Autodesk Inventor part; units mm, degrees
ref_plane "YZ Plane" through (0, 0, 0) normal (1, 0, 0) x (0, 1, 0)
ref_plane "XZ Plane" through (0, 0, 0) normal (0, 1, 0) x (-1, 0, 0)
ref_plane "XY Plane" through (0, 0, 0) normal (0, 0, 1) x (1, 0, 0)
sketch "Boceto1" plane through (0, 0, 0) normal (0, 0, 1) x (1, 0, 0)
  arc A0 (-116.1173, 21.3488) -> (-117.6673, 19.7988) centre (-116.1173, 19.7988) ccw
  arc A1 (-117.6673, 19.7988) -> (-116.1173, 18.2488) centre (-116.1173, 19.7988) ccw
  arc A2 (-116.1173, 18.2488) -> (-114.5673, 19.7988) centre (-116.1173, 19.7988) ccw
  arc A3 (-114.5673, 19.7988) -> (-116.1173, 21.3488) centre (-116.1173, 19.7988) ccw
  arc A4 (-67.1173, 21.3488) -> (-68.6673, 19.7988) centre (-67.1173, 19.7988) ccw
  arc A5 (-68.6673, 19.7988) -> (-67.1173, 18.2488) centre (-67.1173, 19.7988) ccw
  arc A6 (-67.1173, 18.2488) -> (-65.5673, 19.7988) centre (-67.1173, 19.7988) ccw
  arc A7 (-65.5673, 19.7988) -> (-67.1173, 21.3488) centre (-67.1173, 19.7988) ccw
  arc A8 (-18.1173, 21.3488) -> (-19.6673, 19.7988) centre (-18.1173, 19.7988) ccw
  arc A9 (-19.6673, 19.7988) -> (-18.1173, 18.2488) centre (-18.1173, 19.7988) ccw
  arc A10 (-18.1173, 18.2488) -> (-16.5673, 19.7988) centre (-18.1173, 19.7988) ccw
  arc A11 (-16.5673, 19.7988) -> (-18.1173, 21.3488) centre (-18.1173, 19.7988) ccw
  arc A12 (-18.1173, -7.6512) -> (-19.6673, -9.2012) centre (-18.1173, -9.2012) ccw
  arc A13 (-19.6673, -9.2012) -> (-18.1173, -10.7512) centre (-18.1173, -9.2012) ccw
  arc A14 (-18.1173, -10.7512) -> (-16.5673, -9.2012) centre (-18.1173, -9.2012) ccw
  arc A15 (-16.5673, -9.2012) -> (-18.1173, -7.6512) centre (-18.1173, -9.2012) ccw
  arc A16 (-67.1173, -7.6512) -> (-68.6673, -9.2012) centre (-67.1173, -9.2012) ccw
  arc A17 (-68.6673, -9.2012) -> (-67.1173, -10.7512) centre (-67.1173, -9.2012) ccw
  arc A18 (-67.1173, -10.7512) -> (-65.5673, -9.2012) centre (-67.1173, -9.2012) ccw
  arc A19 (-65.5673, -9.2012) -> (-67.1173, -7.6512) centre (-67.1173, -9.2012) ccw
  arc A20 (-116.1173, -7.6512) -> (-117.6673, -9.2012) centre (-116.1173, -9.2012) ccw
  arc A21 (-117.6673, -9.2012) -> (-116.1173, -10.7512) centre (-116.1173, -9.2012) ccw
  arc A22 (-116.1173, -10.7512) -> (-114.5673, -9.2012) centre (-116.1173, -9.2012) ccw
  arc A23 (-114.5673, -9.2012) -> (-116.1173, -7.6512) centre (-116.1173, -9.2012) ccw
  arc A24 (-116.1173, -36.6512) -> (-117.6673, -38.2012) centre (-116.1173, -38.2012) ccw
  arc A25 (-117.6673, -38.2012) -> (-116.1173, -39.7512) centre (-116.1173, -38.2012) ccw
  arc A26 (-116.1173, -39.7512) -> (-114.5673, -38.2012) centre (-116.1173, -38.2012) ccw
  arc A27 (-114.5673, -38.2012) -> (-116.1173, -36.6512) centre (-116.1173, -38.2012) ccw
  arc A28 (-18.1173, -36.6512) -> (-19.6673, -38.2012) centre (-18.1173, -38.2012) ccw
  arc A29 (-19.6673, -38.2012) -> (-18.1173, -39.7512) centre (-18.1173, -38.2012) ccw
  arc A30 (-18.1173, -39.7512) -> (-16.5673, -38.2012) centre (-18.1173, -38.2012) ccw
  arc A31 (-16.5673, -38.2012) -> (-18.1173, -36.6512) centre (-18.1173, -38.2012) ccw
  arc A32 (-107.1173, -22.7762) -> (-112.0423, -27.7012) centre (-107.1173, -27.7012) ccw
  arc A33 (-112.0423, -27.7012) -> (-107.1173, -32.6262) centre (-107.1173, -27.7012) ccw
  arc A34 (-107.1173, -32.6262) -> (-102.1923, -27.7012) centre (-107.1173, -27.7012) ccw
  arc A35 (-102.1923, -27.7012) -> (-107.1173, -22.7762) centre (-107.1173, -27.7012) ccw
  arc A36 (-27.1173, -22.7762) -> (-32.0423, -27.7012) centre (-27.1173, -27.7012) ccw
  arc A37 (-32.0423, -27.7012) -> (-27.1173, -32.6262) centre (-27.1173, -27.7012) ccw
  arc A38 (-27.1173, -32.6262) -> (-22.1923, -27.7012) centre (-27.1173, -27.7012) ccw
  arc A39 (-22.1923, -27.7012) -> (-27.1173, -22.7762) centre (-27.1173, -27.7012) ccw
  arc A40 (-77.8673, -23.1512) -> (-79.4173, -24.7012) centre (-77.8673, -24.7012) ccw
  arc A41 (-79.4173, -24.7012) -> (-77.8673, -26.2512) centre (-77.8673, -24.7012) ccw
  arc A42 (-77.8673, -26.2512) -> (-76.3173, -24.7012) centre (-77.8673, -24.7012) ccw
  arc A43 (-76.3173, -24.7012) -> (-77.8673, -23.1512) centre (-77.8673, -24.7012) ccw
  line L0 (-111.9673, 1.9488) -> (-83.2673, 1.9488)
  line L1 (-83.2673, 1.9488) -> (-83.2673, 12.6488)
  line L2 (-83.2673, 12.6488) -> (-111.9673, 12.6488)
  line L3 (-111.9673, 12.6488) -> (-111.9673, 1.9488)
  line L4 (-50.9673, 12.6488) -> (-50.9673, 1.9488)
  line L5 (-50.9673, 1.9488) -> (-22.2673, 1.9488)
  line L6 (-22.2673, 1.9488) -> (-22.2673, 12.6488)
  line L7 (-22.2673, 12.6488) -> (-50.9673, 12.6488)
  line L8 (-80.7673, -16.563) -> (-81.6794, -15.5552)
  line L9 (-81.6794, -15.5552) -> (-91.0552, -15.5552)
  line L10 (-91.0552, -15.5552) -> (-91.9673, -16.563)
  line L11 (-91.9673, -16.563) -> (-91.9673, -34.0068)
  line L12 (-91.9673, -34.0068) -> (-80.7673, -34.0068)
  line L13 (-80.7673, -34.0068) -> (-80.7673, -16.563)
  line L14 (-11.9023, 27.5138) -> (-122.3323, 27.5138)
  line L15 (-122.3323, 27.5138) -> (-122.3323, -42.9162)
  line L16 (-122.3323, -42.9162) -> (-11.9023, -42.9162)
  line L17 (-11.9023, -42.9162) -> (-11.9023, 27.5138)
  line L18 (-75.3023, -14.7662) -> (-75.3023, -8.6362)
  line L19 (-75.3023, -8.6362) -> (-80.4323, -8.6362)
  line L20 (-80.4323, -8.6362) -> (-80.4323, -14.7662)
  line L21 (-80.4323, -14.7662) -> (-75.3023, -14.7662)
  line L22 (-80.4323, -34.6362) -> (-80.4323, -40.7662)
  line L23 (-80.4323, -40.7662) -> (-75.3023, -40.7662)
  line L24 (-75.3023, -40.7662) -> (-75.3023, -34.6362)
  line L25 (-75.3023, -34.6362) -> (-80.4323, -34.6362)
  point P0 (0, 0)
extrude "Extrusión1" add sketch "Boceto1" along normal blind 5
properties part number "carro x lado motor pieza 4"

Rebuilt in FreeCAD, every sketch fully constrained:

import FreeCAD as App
import Part
import Sketcher

V = App.Vector

doc = App.newDocument("Part")
body = doc.addObject("PartDesign::Body", "Body")

# Sketch on XY plane
sketch1 = body.newObject("Sketcher::SketchObject", "Sketch")
sketch1.AttachmentSupport = (doc.getObject("XY_Plane"), [""])
sketch1.MapMode = "FlatFace"
sketch1.addGeometry([
    Part.LineSegment(V(-11.9, -42.9, 0), V(-11.9, 27.5, 0)),  # 0
    Part.LineSegment(V(-11.9, 27.5, 0), V(-122.3, 27.5, 0)),  # 1
    Part.LineSegment(V(-122.3, 27.5, 0), V(-122.3, -42.9, 0)),  # 2
    Part.LineSegment(V(-122.3, -42.9, 0), V(-11.9, -42.9, 0)),  # 3
    Part.Circle(V(-116.1, -38.2, 0), V(0, 0, 1), 1.5),  # 4
    Part.Circle(V(-107.1, -27.7, 0), V(0, 0, 1), 4.9),  # 5
    Part.LineSegment(V(-80.4, -40.8, 0), V(-80.4, -34.6, 0)),  # 6
    Part.LineSegment(V(-80.4, -34.6, 0), V(-75.3, -34.6, 0)),  # 7
    Part.LineSegment(V(-75.3, -34.6, 0), V(-75.3, -40.8, 0)),  # 8
    Part.LineSegment(V(-75.3, -40.8, 0), V(-80.4, -40.8, 0)),  # 9
    Part.Circle(V(-116.1, -9.2, 0), V(0, 0, 1), 1.5),  # 10
    Part.LineSegment(V(-81.7, -15.6, 0), V(-80.8, -16.6, 0)),  # 11
    Part.LineSegment(V(-80.8, -16.6, 0), V(-80.8, -34, 0)),  # 12
    Part.LineSegment(V(-80.8, -34, 0), V(-92, -34, 0)),  # 13
    Part.LineSegment(V(-92, -34, 0), V(-92, -16.6, 0)),  # 14
    Part.LineSegment(V(-92, -16.6, 0), V(-91.1, -15.6, 0)),  # 15
    Part.LineSegment(V(-91.1, -15.6, 0), V(-81.7, -15.6, 0)),  # 16
    Part.Circle(V(-77.9, -24.7, 0), V(0, 0, 1), 1.6),  # 17
    Part.LineSegment(V(-75.3, -8.6, 0), V(-75.3, -14.8, 0)),  # 18
    Part.LineSegment(V(-75.3, -14.8, 0), V(-80.4, -14.8, 0)),  # 19
    Part.LineSegment(V(-80.4, -14.8, 0), V(-80.4, -8.6, 0)),  # 20
    Part.LineSegment(V(-80.4, -8.6, 0), V(-75.3, -8.6, 0)),  # 21
    Part.Circle(V(-18.1, -38.2, 0), V(0, 0, 1), 1.6),  # 22
    Part.Circle(V(-27.1, -27.7, 0), V(0, 0, 1), 4.9),  # 23
    Part.Circle(V(-67.1, -9.2, 0), V(0, 0, 1), 1.5),  # 24
    Part.Circle(V(-18.1, -9.2, 0), V(0, 0, 1), 1.5),  # 25
    Part.LineSegment(V(-83.3, 1.9, 0), V(-112, 1.9, 0)),  # 26
    Part.LineSegment(V(-112, 1.9, 0), V(-112, 12.6, 0)),  # 27
    Part.LineSegment(V(-112, 12.6, 0), V(-83.3, 12.6, 0)),  # 28
    Part.LineSegment(V(-83.3, 12.6, 0), V(-83.3, 1.9, 0)),  # 29
    Part.Circle(V(-116.1, 19.8, 0), V(0, 0, 1), 1.6),  # 30
    Part.LineSegment(V(-51, 1.9, 0), V(-51, 12.6, 0)),  # 31
    Part.LineSegment(V(-51, 12.6, 0), V(-22.3, 12.6, 0)),  # 32
    Part.LineSegment(V(-22.3, 12.6, 0), V(-22.3, 1.9, 0)),  # 33
    Part.LineSegment(V(-22.3, 1.9, 0), V(-51, 1.9, 0)),  # 34
    Part.Circle(V(-67.1, 19.8, 0), V(0, 0, 1), 1.6),  # 35
    Part.Circle(V(-18.1, 19.8, 0), V(0, 0, 1), 1.6),  # 36
], False)
sketch1.addConstraint([
    Sketcher.Constraint("Coincident", 0, 2, 1, 1),
    Sketcher.Constraint("Coincident", 1, 2, 2, 1),
    Sketcher.Constraint("Coincident", 2, 2, 3, 1),
    Sketcher.Constraint("Coincident", 3, 2, 0, 1),
    Sketcher.Constraint("Coincident", 6, 2, 7, 1),
    Sketcher.Constraint("Coincident", 7, 2, 8, 1),
    Sketcher.Constraint("Coincident", 8, 2, 9, 1),
    Sketcher.Constraint("Coincident", 9, 2, 6, 1),
    Sketcher.Constraint("Coincident", 11, 2, 12, 1),
    Sketcher.Constraint("Coincident", 12, 2, 13, 1),
    Sketcher.Constraint("Coincident", 13, 2, 14, 1),
    Sketcher.Constraint("Coincident", 14, 2, 15, 1),
    Sketcher.Constraint("Coincident", 15, 2, 16, 1),
    Sketcher.Constraint("Coincident", 16, 2, 11, 1),
    Sketcher.Constraint("Coincident", 18, 2, 19, 1),
    Sketcher.Constraint("Coincident", 19, 2, 20, 1),
    Sketcher.Constraint("Coincident", 20, 2, 21, 1),
    Sketcher.Constraint("Coincident", 21, 2, 18, 1),
    Sketcher.Constraint("Coincident", 26, 2, 27, 1),
    Sketcher.Constraint("Coincident", 27, 2, 28, 1),
    Sketcher.Constraint("Coincident", 28, 2, 29, 1),
    Sketcher.Constraint("Coincident", 29, 2, 26, 1),
    Sketcher.Constraint("Coincident", 31, 2, 32, 1),
    Sketcher.Constraint("Coincident", 32, 2, 33, 1),
    Sketcher.Constraint("Coincident", 33, 2, 34, 1),
    Sketcher.Constraint("Coincident", 34, 2, 31, 1),
    Sketcher.Constraint("Vertical", 0),
    Sketcher.Constraint("Horizontal", 1),
    Sketcher.Constraint("Vertical", 2),
    Sketcher.Constraint("Horizontal", 3),
    Sketcher.Constraint("Vertical", 6),
    Sketcher.Constraint("Horizontal", 7),
    Sketcher.Constraint("Vertical", 8),
    Sketcher.Constraint("Horizontal", 9),
    Sketcher.Constraint("Vertical", 12),
    Sketcher.Constraint("Horizontal", 13),
    Sketcher.Constraint("Vertical", 14),
    Sketcher.Constraint("Horizontal", 16),
    Sketcher.Constraint("Vertical", 18),
    Sketcher.Constraint("Horizontal", 19),
    Sketcher.Constraint("Vertical", 20),
    Sketcher.Constraint("Horizontal", 21),
    Sketcher.Constraint("Horizontal", 26),
    Sketcher.Constraint("Vertical", 27),
    Sketcher.Constraint("Horizontal", 28),
    Sketcher.Constraint("Vertical", 29),
    Sketcher.Constraint("Vertical", 31),
    Sketcher.Constraint("Horizontal", 32),
    Sketcher.Constraint("Vertical", 33),
    Sketcher.Constraint("Horizontal", 34),
    Sketcher.Constraint("Equal", 4, 10),
    Sketcher.Constraint("Equal", 10, 17),
    Sketcher.Constraint("Equal", 17, 22),
    Sketcher.Constraint("Equal", 5, 23),
    Sketcher.Constraint("Equal", 22, 24),
    Sketcher.Constraint("Equal", 24, 25),
    Sketcher.Constraint("Equal", 25, 30),
    Sketcher.Constraint("Equal", 30, 35),
    Sketcher.Constraint("Equal", 35, 36),
    Sketcher.Constraint("Horizontal", 4, 3, 22, 3),
    Sketcher.Constraint("Horizontal", 5, 3, 23, 3),
    Sketcher.Constraint("Horizontal", 10, 3, 24, 3),
    Sketcher.Constraint("Horizontal", 24, 3, 25, 3),
    Sketcher.Constraint("Horizontal", 30, 3, 35, 3),
    Sketcher.Constraint("Horizontal", 35, 3, 36, 3),
    Sketcher.Constraint("Horizontal", 11, 2, 14, 2),
    Sketcher.Constraint("Horizontal", 28, 2, 31, 2),
    Sketcher.Constraint("Horizontal", 29, 2, 33, 2),
    Sketcher.Constraint("Vertical", 4, 3, 10, 3),
    Sketcher.Constraint("Vertical", 22, 3, 25, 3),
    Sketcher.Constraint("Vertical", 10, 3, 30, 3),
    Sketcher.Constraint("Vertical", 24, 3, 35, 3),
    Sketcher.Constraint("Vertical", 25, 3, 36, 3),
    Sketcher.Constraint("Vertical", 8, 2, 18, 2),
    Sketcher.Constraint("Vertical", 9, 2, 19, 2),
    Sketcher.Constraint("Equal", 28, 32),
    Sketcher.Constraint("Equal", 8, 18),
    Sketcher.Constraint("Equal", 11, 15),
    Sketcher.Constraint("Diameter", 4, 3.1),
    Sketcher.Constraint("Diameter", 5, 9.85),
    Sketcher.Constraint("DistanceX", 13, 2, 13, 1, 11.2),
    Sketcher.Constraint("DistanceX", 26, 2, 26, 1, 28.7),
    Sketcher.Constraint("DistanceY", 27, 1, 27, 2, 10.7),
    Sketcher.Constraint("DistanceX", 4, 3, 5, 3, 9.0),
    Sketcher.Constraint("DistanceY", 4, 3, 10, 3, 29.0),
    Sketcher.Constraint("DistanceY", 5, 3, 17, 3, 3.0),
    Sketcher.Constraint("DistanceX", 5, 3, 22, 3, 89.0),
    Sketcher.Constraint("DistanceX", 23, 3, 22, 3, 9.0),
    Sketcher.Constraint("DistanceX", 5, 3, 24, 3, 40.0),
    Sketcher.Constraint("DistanceY", 10, 3, 30, 3, 29.0),
    Sketcher.Constraint("DistanceX", 26, 2, 14, 2, 20.0),
    Sketcher.Constraint("DistanceX", 1, 2, 1, 1, 110.43),
    Sketcher.Constraint("DistanceX", 7, 1, 7, 2, 5.13),
    Sketcher.Constraint("DistanceY", 0, 1, 0, 2, 70.43),
    Sketcher.Constraint("DistanceY", 6, 1, 6, 2, 6.13),
    Sketcher.Constraint("DistanceY", 4, 3, 5, 3, 10.5),
    Sketcher.Constraint("DistanceX", 2, 2, 6, 2, 41.9),
    Sketcher.Constraint("DistanceX", 11, 2, 17, 3, 2.9),
    Sketcher.Constraint("DistanceX", 28, 2, 31, 2, 32.3),
    Sketcher.Constraint("DistanceX", 5, 3, 17, 3, 29.25),
    Sketcher.Constraint("DistanceY", 2, 2, 6, 2, 8.28),
    Sketcher.Constraint("DistanceY", 10, 3, 26, 2, 11.15),
    Sketcher.Constraint("DistanceX", 16, 1, 16, 2, 9.3758),
    Sketcher.Constraint("DistanceY", 12, 2, 12, 1, 17.4438),
    Sketcher.Constraint("DistanceY", 11, 2, -1, 1, 16.563),
    Sketcher.Constraint("DistanceX", 36, 3, 0, 2, 6.215),
    Sketcher.Constraint("DistanceY", 36, 3, 0, 2, 7.715),
    Sketcher.Constraint("DistanceY", 17, 3, 15, 2, 9.146),
    Sketcher.Constraint("DistanceY", 16, 2, 18, 2, 0.789),
    Sketcher.Constraint("Distance", 11, 1.3593),
    Sketcher.Constraint("DistanceX", 4, 3, -1, 1, 116.1173),
])
pad1 = body.newObject("PartDesign::Pad", "Pad")
pad1.Profile = sketch1
pad1.Length = 5

doc.recompute()
